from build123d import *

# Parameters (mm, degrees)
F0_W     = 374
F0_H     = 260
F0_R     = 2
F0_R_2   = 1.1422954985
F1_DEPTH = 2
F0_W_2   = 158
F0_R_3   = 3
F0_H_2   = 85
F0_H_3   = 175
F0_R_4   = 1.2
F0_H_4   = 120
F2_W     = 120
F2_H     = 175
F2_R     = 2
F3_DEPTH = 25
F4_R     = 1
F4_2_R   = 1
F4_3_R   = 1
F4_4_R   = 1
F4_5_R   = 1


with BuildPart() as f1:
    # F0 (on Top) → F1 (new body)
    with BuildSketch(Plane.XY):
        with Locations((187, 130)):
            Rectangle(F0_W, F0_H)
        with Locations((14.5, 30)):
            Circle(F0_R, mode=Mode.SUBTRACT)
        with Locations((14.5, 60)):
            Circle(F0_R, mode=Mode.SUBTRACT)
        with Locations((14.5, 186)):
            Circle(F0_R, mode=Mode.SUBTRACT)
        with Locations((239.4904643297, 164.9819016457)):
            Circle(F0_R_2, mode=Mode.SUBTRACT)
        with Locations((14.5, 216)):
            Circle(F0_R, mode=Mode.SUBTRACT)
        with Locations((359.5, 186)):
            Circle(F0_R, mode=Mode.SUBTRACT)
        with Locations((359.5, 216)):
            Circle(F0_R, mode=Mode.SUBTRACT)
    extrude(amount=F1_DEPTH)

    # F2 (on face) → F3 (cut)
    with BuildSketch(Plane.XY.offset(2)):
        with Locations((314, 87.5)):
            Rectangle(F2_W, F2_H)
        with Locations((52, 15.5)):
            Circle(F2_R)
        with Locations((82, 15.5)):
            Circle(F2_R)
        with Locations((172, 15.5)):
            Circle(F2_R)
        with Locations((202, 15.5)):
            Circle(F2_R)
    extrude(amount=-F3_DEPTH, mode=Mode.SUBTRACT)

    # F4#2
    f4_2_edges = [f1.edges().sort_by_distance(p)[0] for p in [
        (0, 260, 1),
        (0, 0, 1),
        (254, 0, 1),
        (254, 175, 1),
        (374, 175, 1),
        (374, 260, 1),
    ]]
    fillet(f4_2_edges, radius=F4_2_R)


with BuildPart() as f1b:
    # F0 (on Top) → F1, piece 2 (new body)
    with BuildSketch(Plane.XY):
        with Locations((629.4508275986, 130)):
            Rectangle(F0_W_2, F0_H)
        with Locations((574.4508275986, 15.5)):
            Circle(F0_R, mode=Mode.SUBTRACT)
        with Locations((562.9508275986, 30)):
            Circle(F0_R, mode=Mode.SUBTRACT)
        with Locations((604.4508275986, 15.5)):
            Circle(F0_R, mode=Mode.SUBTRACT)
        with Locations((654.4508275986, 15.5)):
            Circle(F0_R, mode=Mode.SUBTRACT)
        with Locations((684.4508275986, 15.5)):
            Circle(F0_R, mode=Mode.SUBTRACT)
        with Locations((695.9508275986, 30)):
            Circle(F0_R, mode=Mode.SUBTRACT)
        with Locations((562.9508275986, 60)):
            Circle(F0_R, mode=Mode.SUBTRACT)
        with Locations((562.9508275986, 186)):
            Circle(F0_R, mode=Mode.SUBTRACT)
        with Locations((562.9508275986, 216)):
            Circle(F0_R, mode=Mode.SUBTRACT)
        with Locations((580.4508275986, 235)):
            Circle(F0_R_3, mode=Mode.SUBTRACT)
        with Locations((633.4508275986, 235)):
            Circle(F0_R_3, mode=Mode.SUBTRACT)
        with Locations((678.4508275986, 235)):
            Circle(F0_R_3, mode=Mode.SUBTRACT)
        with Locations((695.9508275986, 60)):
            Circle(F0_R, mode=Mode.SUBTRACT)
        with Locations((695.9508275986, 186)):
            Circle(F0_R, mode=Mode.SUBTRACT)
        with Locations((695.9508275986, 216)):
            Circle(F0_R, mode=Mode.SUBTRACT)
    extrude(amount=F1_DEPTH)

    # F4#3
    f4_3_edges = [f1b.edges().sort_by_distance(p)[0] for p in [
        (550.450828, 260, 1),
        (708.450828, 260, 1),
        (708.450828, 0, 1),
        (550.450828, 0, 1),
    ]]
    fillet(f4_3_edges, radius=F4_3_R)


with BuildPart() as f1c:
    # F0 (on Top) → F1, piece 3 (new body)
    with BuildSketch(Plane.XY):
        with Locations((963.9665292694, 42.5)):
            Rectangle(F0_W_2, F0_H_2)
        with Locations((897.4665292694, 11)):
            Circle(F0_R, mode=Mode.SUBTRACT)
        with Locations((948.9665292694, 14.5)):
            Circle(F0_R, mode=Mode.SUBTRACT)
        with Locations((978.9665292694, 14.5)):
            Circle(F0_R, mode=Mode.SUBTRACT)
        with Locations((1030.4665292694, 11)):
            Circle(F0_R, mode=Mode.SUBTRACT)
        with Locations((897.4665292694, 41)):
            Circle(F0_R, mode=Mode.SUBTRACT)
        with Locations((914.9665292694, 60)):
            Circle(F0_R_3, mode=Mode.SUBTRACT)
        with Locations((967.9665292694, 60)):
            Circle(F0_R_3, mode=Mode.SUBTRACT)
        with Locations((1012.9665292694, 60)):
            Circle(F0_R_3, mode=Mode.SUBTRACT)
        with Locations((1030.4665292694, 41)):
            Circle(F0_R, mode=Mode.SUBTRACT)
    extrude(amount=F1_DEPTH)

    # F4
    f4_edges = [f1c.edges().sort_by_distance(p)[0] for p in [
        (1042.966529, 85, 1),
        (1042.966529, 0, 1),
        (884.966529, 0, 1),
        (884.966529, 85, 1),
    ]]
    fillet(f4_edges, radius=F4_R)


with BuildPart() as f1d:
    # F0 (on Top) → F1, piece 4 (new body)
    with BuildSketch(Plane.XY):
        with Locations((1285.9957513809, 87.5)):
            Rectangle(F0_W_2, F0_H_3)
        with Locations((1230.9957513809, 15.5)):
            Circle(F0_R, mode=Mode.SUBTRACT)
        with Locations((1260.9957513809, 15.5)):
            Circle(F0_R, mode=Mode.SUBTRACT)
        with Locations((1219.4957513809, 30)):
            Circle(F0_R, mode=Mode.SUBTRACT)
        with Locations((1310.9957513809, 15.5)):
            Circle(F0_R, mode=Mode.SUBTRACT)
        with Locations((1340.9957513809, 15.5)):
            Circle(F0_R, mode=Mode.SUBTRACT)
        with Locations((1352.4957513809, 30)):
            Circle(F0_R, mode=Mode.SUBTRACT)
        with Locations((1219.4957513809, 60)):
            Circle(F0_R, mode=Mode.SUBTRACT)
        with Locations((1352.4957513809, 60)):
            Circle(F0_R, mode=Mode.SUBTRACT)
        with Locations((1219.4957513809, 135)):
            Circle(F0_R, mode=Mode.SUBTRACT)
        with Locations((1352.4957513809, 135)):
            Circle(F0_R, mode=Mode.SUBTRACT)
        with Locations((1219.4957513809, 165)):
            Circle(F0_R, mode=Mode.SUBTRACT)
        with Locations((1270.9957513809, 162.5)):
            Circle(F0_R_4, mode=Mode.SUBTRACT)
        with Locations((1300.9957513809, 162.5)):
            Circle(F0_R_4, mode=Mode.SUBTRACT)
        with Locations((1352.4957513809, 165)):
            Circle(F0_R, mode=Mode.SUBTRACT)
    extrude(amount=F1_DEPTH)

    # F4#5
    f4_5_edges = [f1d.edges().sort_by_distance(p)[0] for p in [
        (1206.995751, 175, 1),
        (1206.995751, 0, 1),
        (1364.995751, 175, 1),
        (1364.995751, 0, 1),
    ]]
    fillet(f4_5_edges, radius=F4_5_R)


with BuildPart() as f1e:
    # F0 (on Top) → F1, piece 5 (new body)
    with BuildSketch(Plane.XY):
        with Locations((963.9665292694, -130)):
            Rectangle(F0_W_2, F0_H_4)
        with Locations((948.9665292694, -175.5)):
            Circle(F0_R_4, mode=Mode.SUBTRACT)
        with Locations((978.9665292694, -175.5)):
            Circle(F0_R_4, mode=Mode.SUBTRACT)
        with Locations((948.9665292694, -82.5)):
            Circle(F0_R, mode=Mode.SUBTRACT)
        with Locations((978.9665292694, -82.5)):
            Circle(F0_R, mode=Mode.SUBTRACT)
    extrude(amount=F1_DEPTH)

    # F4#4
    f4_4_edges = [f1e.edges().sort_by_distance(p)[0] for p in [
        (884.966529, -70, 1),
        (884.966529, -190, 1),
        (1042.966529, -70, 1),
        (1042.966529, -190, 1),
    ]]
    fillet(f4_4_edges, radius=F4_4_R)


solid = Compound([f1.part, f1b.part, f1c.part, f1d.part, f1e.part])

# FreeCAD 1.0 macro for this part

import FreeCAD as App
import Part
import Sketcher
Q = App.Units.Quantity


def edges_at(feature, points):
    """Names of the edges that pass closest to the given points."""
    edges = feature.Shape.Edges
    near = lambda p: min(range(len(edges)), key=lambda i: edges[i].distToShape(Part.Vertex(*p))[0])
    return sorted({f"Edge{near(p) + 1}" for p in points})

doc = App.newDocument("Part")
params = doc.addObject("Spreadsheet::Sheet", "Params")
for row, (alias, value) in enumerate([
    ("sketch1_diameter", "4 mm"),
    ("sketch1_width", "374 mm"),
    ("sketch1_height", "260 mm"),
    ("pad1_length", "2 mm"),
    ("sketch2_diameter", "4 mm"),
    ("sketch2_width", "120 mm"),
    ("sketch2_height", "175 mm"),
    ("pocket1_length", "25 mm"),
    ("fillet_radius", "1 mm"),
    ("sketch3_diameter", "4 mm"),
    ("sketch3_diameter2", "6 mm"),
    ("sketch3_width", "158 mm"),
    ("sketch3_height", "260 mm"),
    ("pad2_length", "2 mm"),
    ("fillet2_radius", "1 mm"),
    ("sketch4_diameter", "4 mm"),
    ("sketch4_diameter2", "6 mm"),
    ("sketch4_width", "158 mm"),
    ("sketch4_height", "85 mm"),
    ("pad3_length", "2 mm"),
    ("fillet3_radius", "1 mm"),
    ("sketch5_diameter", "4 mm"),
    ("sketch5_diameter2", "2.4 mm"),
    ("sketch5_width", "158 mm"),
    ("sketch5_height", "175 mm"),
    ("pad4_length", "2 mm"),
    ("fillet4_radius", "1 mm"),
    ("sketch6_diameter", "4 mm"),
    ("sketch6_diameter2", "2.4 mm"),
    ("sketch6_width", "158 mm"),
    ("sketch6_height", "120 mm"),
    ("pad5_length", "2 mm"),
    ("fillet5_radius", "1 mm"),
], start=1):
    params.set(f"A{row}", alias)
    params.set(f"B{row}", "=" + value)
    params.setAlias(f"B{row}", alias)

body = doc.addObject("PartDesign::Body", "Body")

# Sketch on XY plane
sketch1 = body.newObject("Sketcher::SketchObject", "Sketch")
sketch1.AttachmentSupport = (doc.getObject("XY_Plane"), [""])
sketch1.MapMode = "FlatFace"
sketch1.addGeometry([
    Part.LineSegment(App.Vector(0, 260, 0), App.Vector(0, 0, 0)),  # 0
    Part.LineSegment(App.Vector(0, 0, 0), App.Vector(374, 0, 0)),  # 1
    Part.LineSegment(App.Vector(374, 0, 0), App.Vector(374, 260, 0)),  # 2
    Part.LineSegment(App.Vector(374, 260, 0), App.Vector(0, 260, 0)),  # 3
    Part.Circle(App.Vector(14.5, 30, 0), App.Vector(0, 0, 1), 2),  # 4
    Part.Circle(App.Vector(14.5, 60, 0), App.Vector(0, 0, 1), 2),  # 5
    Part.Circle(App.Vector(14.5, 186, 0), App.Vector(0, 0, 1), 2),  # 6
    Part.Circle(App.Vector(14.5, 216, 0), App.Vector(0, 0, 1), 2),  # 7
    Part.Circle(App.Vector(239.5, 165, 0), App.Vector(0, 0, 1), 1.1),  # 8
    Part.Circle(App.Vector(359.5, 186, 0), App.Vector(0, 0, 1), 2),  # 9
    Part.Circle(App.Vector(359.5, 216, 0), App.Vector(0, 0, 1), 2),  # 10
], False)
sketch1.addConstraint([
    Sketcher.Constraint("Coincident", 0, 2, 1, 1),
    Sketcher.Constraint("Coincident", 1, 2, 2, 1),
    Sketcher.Constraint("Coincident", 2, 2, 3, 1),
    Sketcher.Constraint("Coincident", 3, 2, 0, 1),
    Sketcher.Constraint("Vertical", 0),
    Sketcher.Constraint("Horizontal", 1),
    Sketcher.Constraint("Vertical", 2),
    Sketcher.Constraint("Horizontal", 3),
    Sketcher.Constraint("Coincident", 0, 2, -1, 1),
    Sketcher.Constraint("Equal", 4, 5),
    Sketcher.Constraint("Equal", 5, 6),
    Sketcher.Constraint("Equal", 6, 7),
    Sketcher.Constraint("Equal", 7, 9),
    Sketcher.Constraint("Equal", 9, 10),
    Sketcher.Constraint("Horizontal", 6, 3, 9, 3),
    Sketcher.Constraint("Horizontal", 7, 3, 10, 3),
    Sketcher.Constraint("Vertical", 4, 3, 5, 3),
    Sketcher.Constraint("Vertical", 5, 3, 6, 3),
    Sketcher.Constraint("Vertical", 6, 3, 7, 3),
    Sketcher.Constraint("Vertical", 9, 3, 10, 3),
    Sketcher.Constraint("Diameter", 4, Q("4 mm")),
    Sketcher.Constraint("DistanceX", 1, 1, 1, 2, Q("374 mm")),
    Sketcher.Constraint("DistanceY", 0, 2, 0, 1, Q("260 mm")),
    Sketcher.Constraint("DistanceY", -1, 1, 4, 3, Q("30 mm")),
    Sketcher.Constraint("DistanceY", -1, 1, 5, 3, Q("60 mm")),
    Sketcher.Constraint("DistanceY", -1, 1, 6, 3, Q("186 mm")),
    Sketcher.Constraint("DistanceY", -1, 1, 7, 3, Q("216 mm")),
    Sketcher.Constraint("DistanceX", 6, 3, 9, 3, Q("345 mm")),
    Sketcher.Constraint("DistanceX", -1, 1, 4, 3, Q("14.5 mm")),
    Sketcher.Constraint("Diameter", 8, Q("2.284591 mm")),
    Sketcher.Constraint("DistanceY", -1, 1, 8, 3, Q("164.981902 mm")),
    Sketcher.Constraint("DistanceX", -1, 1, 8, 3, Q("239.490464 mm")),
])
sketch1.setExpression("Constraints[20]", "Params.sketch1_diameter")
sketch1.setExpression("Constraints[21]", "Params.sketch1_width")
sketch1.setExpression("Constraints[22]", "Params.sketch1_height")
pad1 = body.newObject("PartDesign::Pad", "Pad")
pad1.Profile = sketch1
pad1.setExpression("Length", "Params.pad1_length")

# Sketch on XY plane
sketch2 = body.newObject("Sketcher::SketchObject", "Sketch001")
sketch2.AttachmentSupport = (doc.getObject("XY_Plane"), [""])
sketch2.MapMode = "FlatFace"
sketch2.AttachmentOffset = App.Placement(App.Vector(0, 0, 2), App.Rotation())
sketch2.addGeometry([
    Part.LineSegment(App.Vector(254, 175, 0), App.Vector(254, 0, 0)),  # 0
    Part.LineSegment(App.Vector(254, 0, 0), App.Vector(374, 0, 0)),  # 1
    Part.LineSegment(App.Vector(374, 0, 0), App.Vector(374, 175, 0)),  # 2
    Part.LineSegment(App.Vector(374, 175, 0), App.Vector(254, 175, 0)),  # 3
    Part.Circle(App.Vector(52, 15.5, 0), App.Vector(0, 0, 1), 2),  # 4
    Part.Circle(App.Vector(82, 15.5, 0), App.Vector(0, 0, 1), 2),  # 5
    Part.Circle(App.Vector(172, 15.5, 0), App.Vector(0, 0, 1), 2),  # 6
    Part.Circle(App.Vector(202, 15.5, 0), App.Vector(0, 0, 1), 2),  # 7
], False)
sketch2.addConstraint([
    Sketcher.Constraint("Coincident", 0, 2, 1, 1),
    Sketcher.Constraint("Coincident", 1, 2, 2, 1),
    Sketcher.Constraint("Coincident", 2, 2, 3, 1),
    Sketcher.Constraint("Coincident", 3, 2, 0, 1),
    Sketcher.Constraint("Vertical", 0),
    Sketcher.Constraint("Horizontal", 1),
    Sketcher.Constraint("Vertical", 2),
    Sketcher.Constraint("Horizontal", 3),
    Sketcher.Constraint("Equal", 4, 5),
    Sketcher.Constraint("Equal", 5, 6),
    Sketcher.Constraint("Equal", 6, 7),
    Sketcher.Constraint("PointOnObject", 0, 2, -1),
    Sketcher.Constraint("Horizontal", 4, 3, 5, 3),
    Sketcher.Constraint("Horizontal", 5, 3, 6, 3),
    Sketcher.Constraint("Horizontal", 6, 3, 7, 3),
    Sketcher.Constraint("Diameter", 4, Q("4 mm")),
    Sketcher.Constraint("DistanceX", 1, 1, 1, 2, Q("120 mm")),
    Sketcher.Constraint("DistanceY", 0, 2, 0, 1, Q("175 mm")),
    Sketcher.Constraint("DistanceX", -1, 1, 4, 3, Q("52 mm")),
    Sketcher.Constraint("DistanceX", -1, 1, 5, 3, Q("82 mm")),
    Sketcher.Constraint("DistanceX", -1, 1, 6, 3, Q("172 mm")),
    Sketcher.Constraint("DistanceX", -1, 1, 7, 3, Q("202 mm")),
    Sketcher.Constraint("DistanceX", -1, 1, 0, 2, Q("254 mm")),
    Sketcher.Constraint("DistanceY", -1, 1, 4, 3, Q("15.5 mm")),
])
sketch2.setExpression("Constraints[15]", "Params.sketch2_diameter")
sketch2.setExpression("Constraints[16]", "Params.sketch2_width")
sketch2.setExpression("Constraints[17]", "Params.sketch2_height")
pocket1 = body.newObject("PartDesign::Pocket", "Pocket")
pocket1.Profile = sketch2
pocket1.setExpression("Length", "Params.pocket1_length")
doc.recompute()

fillet = body.newObject("PartDesign::Fillet", "Fillet")
fillet.Base = (pocket1, edges_at(pocket1, [
    (0, 260, 1),
    (0, 0, 1),
    (254, 0, 1),
    (254, 175, 1),
    (374, 175, 1),
    (374, 260, 1),
]))
fillet.setExpression("Radius", "Params.fillet_radius")
body2 = doc.addObject("PartDesign::Body", "Body001")

# Sketch on XY plane
sketch3 = body2.newObject("Sketcher::SketchObject", "Sketch002")
sketch3.AttachmentSupport = (doc.getObject("XY_Plane001"), [""])
sketch3.MapMode = "FlatFace"
sketch3.addGeometry([
    Part.LineSegment(App.Vector(550.5, 260, 0), App.Vector(550.5, 0, 0)),  # 0
    Part.LineSegment(App.Vector(550.5, 0, 0), App.Vector(708.5, 0, 0)),  # 1
    Part.LineSegment(App.Vector(708.5, 0, 0), App.Vector(708.5, 260, 0)),  # 2
    Part.LineSegment(App.Vector(708.5, 260, 0), App.Vector(550.5, 260, 0)),  # 3
    Part.Circle(App.Vector(574.5, 15.5, 0), App.Vector(0, 0, 1), 2),  # 4
    Part.Circle(App.Vector(563, 30, 0), App.Vector(0, 0, 1), 2),  # 5
    Part.Circle(App.Vector(563, 60, 0), App.Vector(0, 0, 1), 2),  # 6
    Part.Circle(App.Vector(604.5, 15.5, 0), App.Vector(0, 0, 1), 2),  # 7
    Part.Circle(App.Vector(654.5, 15.5, 0), App.Vector(0, 0, 1), 2),  # 8
    Part.Circle(App.Vector(684.5, 15.5, 0), App.Vector(0, 0, 1), 2),  # 9
    Part.Circle(App.Vector(696, 30, 0), App.Vector(0, 0, 1), 2),  # 10
    Part.Circle(App.Vector(696, 60, 0), App.Vector(0, 0, 1), 2),  # 11
    Part.Circle(App.Vector(563, 186, 0), App.Vector(0, 0, 1), 2),  # 12
    Part.Circle(App.Vector(563, 216, 0), App.Vector(0, 0, 1), 2),  # 13
    Part.Circle(App.Vector(580.5, 235, 0), App.Vector(0, 0, 1), 3),  # 14
    Part.Circle(App.Vector(633.5, 235, 0), App.Vector(0, 0, 1), 3),  # 15
    Part.Circle(App.Vector(696, 186, 0), App.Vector(0, 0, 1), 2),  # 16
    Part.Circle(App.Vector(678.5, 235, 0), App.Vector(0, 0, 1), 3),  # 17
    Part.Circle(App.Vector(696, 216, 0), App.Vector(0, 0, 1), 2),  # 18
], False)
sketch3.addConstraint([
    Sketcher.Constraint("Coincident", 0, 2, 1, 1),
    Sketcher.Constraint("Coincident", 1, 2, 2, 1),
    Sketcher.Constraint("Coincident", 2, 2, 3, 1),
    Sketcher.Constraint("Coincident", 3, 2, 0, 1),
    Sketcher.Constraint("Vertical", 0),
    Sketcher.Constraint("Horizontal", 1),
    Sketcher.Constraint("Vertical", 2),
    Sketcher.Constraint("Horizontal", 3),
    Sketcher.Constraint("Equal", 4, 5),
    Sketcher.Constraint("Equal", 5, 6),
    Sketcher.Constraint("Equal", 6, 7),
    Sketcher.Constraint("Equal", 7, 8),
    Sketcher.Constraint("Equal", 8, 9),
    Sketcher.Constraint("Equal", 9, 10),
    Sketcher.Constraint("Equal", 10, 11),
    Sketcher.Constraint("Equal", 11, 12),
    Sketcher.Constraint("Equal", 12, 13),
    Sketcher.Constraint("Equal", 14, 15),
    Sketcher.Constraint("Equal", 13, 16),
    Sketcher.Constraint("Equal", 15, 17),
    Sketcher.Constraint("Equal", 16, 18),
    Sketcher.Constraint("PointOnObject", 0, 2, -1),
    Sketcher.Constraint("Horizontal", 4, 3, 7, 3),
    Sketcher.Constraint("Horizontal", 7, 3, 8, 3),
    Sketcher.Constraint("Horizontal", 8, 3, 9, 3),
    Sketcher.Constraint("Horizontal", 5, 3, 10, 3),
    Sketcher.Constraint("Horizontal", 6, 3, 11, 3),
    Sketcher.Constraint("Horizontal", 14, 3, 15, 3),
    Sketcher.Constraint("Horizontal", 12, 3, 16, 3),
    Sketcher.Constraint("Horizontal", 15, 3, 17, 3),
    Sketcher.Constraint("Horizontal", 13, 3, 18, 3),
    Sketcher.Constraint("Vertical", 5, 3, 6, 3),
    Sketcher.Constraint("Vertical", 10, 3, 11, 3),
    Sketcher.Constraint("Vertical", 6, 3, 12, 3),
    Sketcher.Constraint("Vertical", 12, 3, 13, 3),
    Sketcher.Constraint("Vertical", 11, 3, 16, 3),
    Sketcher.Constraint("Vertical", 16, 3, 18, 3),
    Sketcher.Constraint("Diameter", 4, Q("4 mm")),
    Sketcher.Constraint("Diameter", 14, Q("6 mm")),
    Sketcher.Constraint("DistanceX", 1, 1, 1, 2, Q("158 mm")),
    Sketcher.Constraint("DistanceY", 0, 2, 0, 1, Q("260 mm")),
    Sketcher.Constraint("DistanceY", -1, 1, 5, 3, Q("30 mm")),
    Sketcher.Constraint("DistanceY", -1, 1, 6, 3, Q("60 mm")),
    Sketcher.Constraint("DistanceY", -1, 1, 12, 3, Q("186 mm")),
    Sketcher.Constraint("DistanceY", -1, 1, 13, 3, Q("216 mm")),
    Sketcher.Constraint("DistanceY", -1, 1, 14, 3, Q("235 mm")),
    Sketcher.Constraint("DistanceX", 4, 3, 7, 3, Q("30 mm")),
    Sketcher.Constraint("DistanceX", 7, 3, 8, 3, Q("50 mm")),
    Sketcher.Constraint("DistanceX", 8, 3, 9, 3, Q("30 mm")),
    Sketcher.Constraint("DistanceX", 5, 3, 10, 3, Q("133 mm")),
    Sketcher.Constraint("DistanceX", 14, 3, 15, 3, Q("53 mm")),
    Sketcher.Constraint("DistanceX", 15, 3, 17, 3, Q("45 mm")),
    Sketcher.Constraint("DistanceX", 0, 2, 4, 3, Q("24 mm")),
    Sketcher.Constraint("DistanceX", 17, 3, 2, 2, Q("30 mm")),
    Sketcher.Constraint("DistanceY", -1, 1, 4, 3, Q("15.5 mm")),
    Sketcher.Constraint("DistanceX", 5, 3, 4, 3, Q("11.5 mm")),
    Sketcher.Constraint("DistanceX", -1, 1, 4, 3, Q("574.450828 mm")),
])
sketch3.setExpression("Constraints[37]", "Params.sketch3_diameter")
sketch3.setExpression("Constraints[38]", "Params.sketch3_diameter2")
sketch3.setExpression("Constraints[39]", "Params.sketch3_width")
sketch3.setExpression("Constraints[40]", "Params.sketch3_height")
pad2 = body2.newObject("PartDesign::Pad", "Pad001")
pad2.Profile = sketch3
pad2.setExpression("Length", "Params.pad2_length")
doc.recompute()

fillet2 = body2.newObject("PartDesign::Fillet", "Fillet001")
fillet2.Base = (pad2, edges_at(pad2, [
    (550.451, 260, 1),
    (708.451, 260, 1),
    (708.451, 0, 1),
    (550.451, 0, 1),
]))
fillet2.setExpression("Radius", "Params.fillet2_radius")
body3 = doc.addObject("PartDesign::Body", "Body002")

# Sketch on XY plane
sketch4 = body3.newObject("Sketcher::SketchObject", "Sketch003")
sketch4.AttachmentSupport = (doc.getObject("XY_Plane002"), [""])
sketch4.MapMode = "FlatFace"
sketch4.addGeometry([
    Part.LineSegment(App.Vector(885, 85, 0), App.Vector(885, 0, 0)),  # 0
    Part.LineSegment(App.Vector(885, 0, 0), App.Vector(1043, 0, 0)),  # 1
    Part.LineSegment(App.Vector(1043, 0, 0), App.Vector(1043, 85, 0)),  # 2
    Part.LineSegment(App.Vector(1043, 85, 0), App.Vector(885, 85, 0)),  # 3
    Part.Circle(App.Vector(897.5, 11, 0), App.Vector(0, 0, 1), 2),  # 4
    Part.Circle(App.Vector(949, 14.5, 0), App.Vector(0, 0, 1), 2),  # 5
    Part.Circle(App.Vector(979, 14.5, 0), App.Vector(0, 0, 1), 2),  # 6
    Part.Circle(App.Vector(1030.5, 11, 0), App.Vector(0, 0, 1), 2),  # 7
    Part.Circle(App.Vector(897.5, 41, 0), App.Vector(0, 0, 1), 2),  # 8
    Part.Circle(App.Vector(915, 60, 0), App.Vector(0, 0, 1), 3),  # 9
    Part.Circle(App.Vector(1030.5, 41, 0), App.Vector(0, 0, 1), 2),  # 10
    Part.Circle(App.Vector(968, 60, 0), App.Vector(0, 0, 1), 3),  # 11
    Part.Circle(App.Vector(1013, 60, 0), App.Vector(0, 0, 1), 3),  # 12
], False)
sketch4.addConstraint([
    Sketcher.Constraint("Coincident", 0, 2, 1, 1),
    Sketcher.Constraint("Coincident", 1, 2, 2, 1),
    Sketcher.Constraint("Coincident", 2, 2, 3, 1),
    Sketcher.Constraint("Coincident", 3, 2, 0, 1),
    Sketcher.Constraint("Vertical", 0),
    Sketcher.Constraint("Horizontal", 1),
    Sketcher.Constraint("Vertical", 2),
    Sketcher.Constraint("Horizontal", 3),
    Sketcher.Constraint("Equal", 4, 5),
    Sketcher.Constraint("Equal", 5, 6),
    Sketcher.Constraint("Equal", 6, 7),
    Sketcher.Constraint("Equal", 7, 8),
    Sketcher.Constraint("Equal", 8, 10),
    Sketcher.Constraint("Equal", 9, 11),
    Sketcher.Constraint("Equal", 11, 12),
    Sketcher.Constraint("PointOnObject", 0, 2, -1),
    Sketcher.Constraint("Horizontal", 5, 3, 6, 3),
    Sketcher.Constraint("Horizontal", 4, 3, 7, 3),
    Sketcher.Constraint("Horizontal", 8, 3, 10, 3),
    Sketcher.Constraint("Horizontal", 9, 3, 11, 3),
    Sketcher.Constraint("Horizontal", 11, 3, 12, 3),
    Sketcher.Constraint("Vertical", 4, 3, 8, 3),
    Sketcher.Constraint("Vertical", 7, 3, 10, 3),
    Sketcher.Constraint("Diameter", 4, Q("4 mm")),
    Sketcher.Constraint("Diameter", 9, Q("6 mm")),
    Sketcher.Constraint("DistanceX", 1, 1, 1, 2, Q("158 mm")),
    Sketcher.Constraint("DistanceY", 0, 2, 0, 1, Q("85 mm")),
    Sketcher.Constraint("DistanceY", -1, 1, 4, 3, Q("11 mm")),
    Sketcher.Constraint("DistanceY", -1, 1, 8, 3, Q("41 mm")),
    Sketcher.Constraint("DistanceY", -1, 1, 9, 3, Q("60 mm")),
    Sketcher.Constraint("DistanceX", 5, 3, 6, 3, Q("30 mm")),
    Sketcher.Constraint("DistanceX", 4, 3, 7, 3, Q("133 mm")),
    Sketcher.Constraint("DistanceX", 9, 3, 5, 3, Q("34 mm")),
    Sketcher.Constraint("DistanceX", 11, 3, 6, 3, Q("11 mm")),
    Sketcher.Constraint("DistanceX", 11, 3, 12, 3, Q("45 mm")),
    Sketcher.Constraint("DistanceX", 0, 2, 5, 3, Q("64 mm")),
    Sketcher.Constraint("DistanceY", -1, 1, 5, 3, Q("14.5 mm")),
    Sketcher.Constraint("DistanceX", 4, 3, 5, 3, Q("51.5 mm")),
    Sketcher.Constraint("DistanceX", -1, 1, 4, 3, Q("897.466529 mm")),
])
sketch4.setExpression("Constraints[23]", "Params.sketch4_diameter")
sketch4.setExpression("Constraints[24]", "Params.sketch4_diameter2")
sketch4.setExpression("Constraints[25]", "Params.sketch4_width")
sketch4.setExpression("Constraints[26]", "Params.sketch4_height")
pad3 = body3.newObject("PartDesign::Pad", "Pad002")
pad3.Profile = sketch4
pad3.setExpression("Length", "Params.pad3_length")
doc.recompute()

fillet3 = body3.newObject("PartDesign::Fillet", "Fillet002")
fillet3.Base = (pad3, edges_at(pad3, [
    (1042.967, 85, 1),
    (1042.967, 0, 1),
    (884.967, 0, 1),
    (884.967, 85, 1),
]))
fillet3.setExpression("Radius", "Params.fillet3_radius")
body4 = doc.addObject("PartDesign::Body", "Body003")

# Sketch on XY plane
sketch5 = body4.newObject("Sketcher::SketchObject", "Sketch004")
sketch5.AttachmentSupport = (doc.getObject("XY_Plane003"), [""])
sketch5.MapMode = "FlatFace"
sketch5.addGeometry([
    Part.LineSegment(App.Vector(1206.995751, 175, 0), App.Vector(1206.995751, 0, 0)),  # 0
    Part.LineSegment(App.Vector(1206.995751, 0, 0), App.Vector(1364.995751, 0, 0)),  # 1
    Part.LineSegment(App.Vector(1364.995751, 0, 0), App.Vector(1364.995751, 175, 0)),  # 2
    Part.LineSegment(App.Vector(1364.995751, 175, 0), App.Vector(1206.995751, 175, 0)),  # 3
    Part.Circle(App.Vector(1230.995751, 15.5, 0), App.Vector(0, 0, 1), 2),  # 4
    Part.Circle(App.Vector(1219.495751, 30, 0), App.Vector(0, 0, 1), 2),  # 5
    Part.Circle(App.Vector(1260.995751, 15.5, 0), App.Vector(0, 0, 1), 2),  # 6
    Part.Circle(App.Vector(1219.495751, 60, 0), App.Vector(0, 0, 1), 2),  # 7
    Part.Circle(App.Vector(1310.995751, 15.5, 0), App.Vector(0, 0, 1), 2),  # 8
    Part.Circle(App.Vector(1340.995751, 15.5, 0), App.Vector(0, 0, 1), 2),  # 9
    Part.Circle(App.Vector(1352.495751, 30, 0), App.Vector(0, 0, 1), 2),  # 10
    Part.Circle(App.Vector(1352.495751, 60, 0), App.Vector(0, 0, 1), 2),  # 11
    Part.Circle(App.Vector(1219.495751, 135, 0), App.Vector(0, 0, 1), 2),  # 12
    Part.Circle(App.Vector(1219.495751, 165, 0), App.Vector(0, 0, 1), 2),  # 13
    Part.Circle(App.Vector(1270.995751, 162.5, 0), App.Vector(0, 0, 1), 1.2),  # 14
    Part.Circle(App.Vector(1300.995751, 162.5, 0), App.Vector(0, 0, 1), 1.2),  # 15
    Part.Circle(App.Vector(1352.495751, 135, 0), App.Vector(0, 0, 1), 2),  # 16
    Part.Circle(App.Vector(1352.495751, 165, 0), App.Vector(0, 0, 1), 2),  # 17
], False)
sketch5.addConstraint([
    Sketcher.Constraint("Coincident", 0, 2, 1, 1),
    Sketcher.Constraint("Coincident", 1, 2, 2, 1),
    Sketcher.Constraint("Coincident", 2, 2, 3, 1),
    Sketcher.Constraint("Coincident", 3, 2, 0, 1),
    Sketcher.Constraint("Vertical", 0),
    Sketcher.Constraint("Horizontal", 1),
    Sketcher.Constraint("Vertical", 2),
    Sketcher.Constraint("Horizontal", 3),
    Sketcher.Constraint("Equal", 4, 5),
    Sketcher.Constraint("Equal", 5, 6),
    Sketcher.Constraint("Equal", 6, 7),
    Sketcher.Constraint("Equal", 7, 8),
    Sketcher.Constraint("Equal", 8, 9),
    Sketcher.Constraint("Equal", 9, 10),
    Sketcher.Constraint("Equal", 10, 11),
    Sketcher.Constraint("Equal", 11, 12),
    Sketcher.Constraint("Equal", 12, 13),
    Sketcher.Constraint("Equal", 14, 15),
    Sketcher.Constraint("Equal", 13, 16),
    Sketcher.Constraint("Equal", 16, 17),
    Sketcher.Constraint("PointOnObject", 0, 2, -1),
    Sketcher.Constraint("Horizontal", 4, 3, 6, 3),
    Sketcher.Constraint("Horizontal", 6, 3, 8, 3),
    Sketcher.Constraint("Horizontal", 8, 3, 9, 3),
    Sketcher.Constraint("Horizontal", 5, 3, 10, 3),
    Sketcher.Constraint("Horizontal", 7, 3, 11, 3),
    Sketcher.Constraint("Horizontal", 14, 3, 15, 3),
    Sketcher.Constraint("Horizontal", 12, 3, 16, 3),
    Sketcher.Constraint("Horizontal", 13, 3, 17, 3),
    Sketcher.Constraint("Vertical", 5, 3, 7, 3),
    Sketcher.Constraint("Vertical", 10, 3, 11, 3),
    Sketcher.Constraint("Vertical", 7, 3, 12, 3),
    Sketcher.Constraint("Vertical", 12, 3, 13, 3),
    Sketcher.Constraint("Vertical", 11, 3, 16, 3),
    Sketcher.Constraint("Vertical", 16, 3, 17, 3),
    Sketcher.Constraint("Diameter", 4, Q("4 mm")),
    Sketcher.Constraint("Diameter", 14, Q("2.4 mm")),
    Sketcher.Constraint("DistanceX", 1, 1, 1, 2, Q("158 mm")),
    Sketcher.Constraint("DistanceY", 0, 2, 0, 1, Q("175 mm")),
    Sketcher.Constraint("DistanceY", -1, 1, 5, 3, Q("30 mm")),
    Sketcher.Constraint("DistanceY", -1, 1, 7, 3, Q("60 mm")),
    Sketcher.Constraint("DistanceY", -1, 1, 12, 3, Q("135 mm")),
    Sketcher.Constraint("DistanceY", -1, 1, 13, 3, Q("165 mm")),
    Sketcher.Constraint("DistanceX", 4, 3, 6, 3, Q("30 mm")),
    Sketcher.Constraint("DistanceX", 6, 3, 8, 3, Q("50 mm")),
    Sketcher.Constraint("DistanceX", 8, 3, 9, 3, Q("30 mm")),
    Sketcher.Constraint("DistanceX", 5, 3, 10, 3, Q("133 mm")),
    Sketcher.Constraint("DistanceX", 14, 3, 15, 3, Q("30 mm")),
    Sketcher.Constraint("DistanceX", 0, 2, 4, 3, Q("24 mm")),
    Sketcher.Constraint("DistanceX", 15, 3, 2, 2, Q("64 mm")),
    Sketcher.Constraint("DistanceY", -1, 1, 4, 3, Q("15.5 mm")),
    Sketcher.Constraint("DistanceY", -1, 1, 14, 3, Q("162.5 mm")),
    Sketcher.Constraint("DistanceX", 5, 3, 4, 3, Q("11.5 mm")),
    Sketcher.Constraint("DistanceX", -1, 1, 4, 3, Q("1230.995751 mm")),
])
sketch5.setExpression("Constraints[35]", "Params.sketch5_diameter")
sketch5.setExpression("Constraints[36]", "Params.sketch5_diameter2")
sketch5.setExpression("Constraints[37]", "Params.sketch5_width")
sketch5.setExpression("Constraints[38]", "Params.sketch5_height")
pad4 = body4.newObject("PartDesign::Pad", "Pad003")
pad4.Profile = sketch5
pad4.setExpression("Length", "Params.pad4_length")
doc.recompute()

fillet4 = body4.newObject("PartDesign::Fillet", "Fillet003")
fillet4.Base = (pad4, edges_at(pad4, [
    (1206.996, 175, 1),
    (1206.996, 0, 1),
    (1364.996, 175, 1),
    (1364.996, 0, 1),
]))
fillet4.setExpression("Radius", "Params.fillet4_radius")
body5 = doc.addObject("PartDesign::Body", "Body004")

# Sketch on XY plane
sketch6 = body5.newObject("Sketcher::SketchObject", "Sketch005")
sketch6.AttachmentSupport = (doc.getObject("XY_Plane004"), [""])
sketch6.MapMode = "FlatFace"
sketch6.addGeometry([
    Part.LineSegment(App.Vector(885, -70, 0), App.Vector(885, -190, 0)),  # 0
    Part.LineSegment(App.Vector(885, -190, 0), App.Vector(1043, -190, 0)),  # 1
    Part.LineSegment(App.Vector(1043, -190, 0), App.Vector(1043, -70, 0)),  # 2
    Part.LineSegment(App.Vector(1043, -70, 0), App.Vector(885, -70, 0)),  # 3
    Part.Circle(App.Vector(949, -175.5, 0), App.Vector(0, 0, 1), 1.2),  # 4
    Part.Circle(App.Vector(979, -175.5, 0), App.Vector(0, 0, 1), 1.2),  # 5
    Part.Circle(App.Vector(949, -82.5, 0), App.Vector(0, 0, 1), 2),  # 6
    Part.Circle(App.Vector(979, -82.5, 0), App.Vector(0, 0, 1), 2),  # 7
], False)
sketch6.addConstraint([
    Sketcher.Constraint("Coincident", 0, 2, 1, 1),
    Sketcher.Constraint("Coincident", 1, 2, 2, 1),
    Sketcher.Constraint("Coincident", 2, 2, 3, 1),
    Sketcher.Constraint("Coincident", 3, 2, 0, 1),
    Sketcher.Constraint("Vertical", 0),
    Sketcher.Constraint("Horizontal", 1),
    Sketcher.Constraint("Vertical", 2),
    Sketcher.Constraint("Horizontal", 3),
    Sketcher.Constraint("Equal", 4, 5),
    Sketcher.Constraint("Equal", 6, 7),
    Sketcher.Constraint("Horizontal", 4, 3, 5, 3),
    Sketcher.Constraint("Horizontal", 6, 3, 7, 3),
    Sketcher.Constraint("Vertical", 4, 3, 6, 3),
    Sketcher.Constraint("Vertical", 5, 3, 7, 3),
    Sketcher.Constraint("Diameter", 6, Q("4 mm")),
    Sketcher.Constraint("Diameter", 4, Q("2.4 mm")),
    Sketcher.Constraint("DistanceX", 1, 1, 1, 2, Q("158 mm")),
    Sketcher.Constraint("DistanceY", 0, 2, 0, 1, Q("120 mm")),
    Sketcher.Constraint("DistanceY", 0, 2, -1, 1, Q("190 mm")),
    Sketcher.Constraint("DistanceX", 4, 3, 5, 3, Q("30 mm")),
    Sketcher.Constraint("DistanceY", 4, 3, 6, 3, Q("93 mm")),
    Sketcher.Constraint("DistanceX", 0, 2, 4, 3, Q("64 mm")),
    Sketcher.Constraint("DistanceY", 4, 3, -1, 1, Q("175.5 mm")),
    Sketcher.Constraint("DistanceX", -1, 1, 4, 3, Q("948.966529 mm")),
])
sketch6.setExpression("Constraints[14]", "Params.sketch6_diameter")
sketch6.setExpression("Constraints[15]", "Params.sketch6_diameter2")
sketch6.setExpression("Constraints[16]", "Params.sketch6_width")
sketch6.setExpression("Constraints[17]", "Params.sketch6_height")
pad5 = body5.newObject("PartDesign::Pad", "Pad004")
pad5.Profile = sketch6
pad5.setExpression("Length", "Params.pad5_length")
doc.recompute()

fillet5 = body5.newObject("PartDesign::Fillet", "Fillet004")
fillet5.Base = (pad5, edges_at(pad5, [
    (884.967, -70, 1),
    (884.967, -190, 1),
    (1042.967, -70, 1),
    (1042.967, -190, 1),
]))
fillet5.setExpression("Radius", "Params.fillet5_radius")

doc.recompute()
